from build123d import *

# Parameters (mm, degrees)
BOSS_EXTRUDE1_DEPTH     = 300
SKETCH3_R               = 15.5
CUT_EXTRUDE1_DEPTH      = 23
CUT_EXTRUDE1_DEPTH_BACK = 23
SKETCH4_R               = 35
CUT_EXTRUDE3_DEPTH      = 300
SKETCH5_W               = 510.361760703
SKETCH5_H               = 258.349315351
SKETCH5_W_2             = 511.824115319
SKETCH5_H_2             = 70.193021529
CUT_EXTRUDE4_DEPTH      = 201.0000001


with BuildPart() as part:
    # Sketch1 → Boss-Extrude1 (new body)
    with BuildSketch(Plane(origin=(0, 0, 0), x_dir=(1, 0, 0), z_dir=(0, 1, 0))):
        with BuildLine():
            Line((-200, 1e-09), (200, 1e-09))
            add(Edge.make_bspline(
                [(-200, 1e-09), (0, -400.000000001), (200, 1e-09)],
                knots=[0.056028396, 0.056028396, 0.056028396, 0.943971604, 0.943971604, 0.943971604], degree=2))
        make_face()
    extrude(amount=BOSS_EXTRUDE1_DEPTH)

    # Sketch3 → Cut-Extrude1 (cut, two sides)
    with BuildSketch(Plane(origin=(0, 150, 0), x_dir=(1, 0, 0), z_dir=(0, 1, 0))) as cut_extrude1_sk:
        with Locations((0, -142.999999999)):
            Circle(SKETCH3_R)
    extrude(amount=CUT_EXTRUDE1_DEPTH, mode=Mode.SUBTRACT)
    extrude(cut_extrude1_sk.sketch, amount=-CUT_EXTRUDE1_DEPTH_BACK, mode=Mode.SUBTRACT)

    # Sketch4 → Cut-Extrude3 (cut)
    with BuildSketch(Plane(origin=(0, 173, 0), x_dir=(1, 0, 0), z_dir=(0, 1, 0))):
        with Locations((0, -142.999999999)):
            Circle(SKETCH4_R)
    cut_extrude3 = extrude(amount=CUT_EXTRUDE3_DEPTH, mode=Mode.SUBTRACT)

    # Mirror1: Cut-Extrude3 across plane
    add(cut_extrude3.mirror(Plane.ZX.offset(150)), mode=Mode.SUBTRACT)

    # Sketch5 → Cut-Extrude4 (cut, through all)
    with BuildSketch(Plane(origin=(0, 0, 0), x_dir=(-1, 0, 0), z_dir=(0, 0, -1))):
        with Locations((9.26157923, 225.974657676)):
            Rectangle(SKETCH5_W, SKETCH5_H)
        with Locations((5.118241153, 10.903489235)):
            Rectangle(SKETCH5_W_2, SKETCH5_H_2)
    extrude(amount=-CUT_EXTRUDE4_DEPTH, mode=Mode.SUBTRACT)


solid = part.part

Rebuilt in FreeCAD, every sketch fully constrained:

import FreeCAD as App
import Part
import Sketcher

V = App.Vector
Q = App.Units.Quantity


def add_polygon(sketch, points):
    """Adds a closed chain of lines whose ends are joined by coincident constraints."""
    first, n = sketch.GeometryCount, len(points)
    for a, b in zip(points, points[1:] + points[:1]):
        sketch.addGeometry(Part.LineSegment(App.Vector(*a, 0), App.Vector(*b, 0)), False)
    for i in range(n):
        sketch.addConstraint(Sketcher.Constraint("Coincident", first + i, 2, first + (i + 1) % n, 1))

doc = App.newDocument("Part")
body = doc.addObject("PartDesign::Body", "Body")

sketch1 = body.newObject("Sketcher::SketchObject", "Sketch")
sketch1.AttachmentSupport = (doc.getObject("XZ_Plane"), [""])
sketch1.MapMode = "FlatFace"
sketch1.addGeometry(Part.LineSegment(V(200, 0, 0), V(-200, 0, 0)), False)
sketch1.addGeometry(Part.BSplineCurve([V(-200, 0, 0), V(0, 400, 0), V(200, 0, 0)], [3, 3], [0.056028396, 0.943971604], False, 2, [1, 1, 1], False), False)
sketch1.addConstraint(Sketcher.Constraint("Block", 1))
sketch1.addConstraint(Sketcher.Constraint("Coincident", 0, 1, 1, 2))
sketch1.addConstraint(Sketcher.Constraint("Coincident", 1, 1, 0, 2))
pad1 = body.newObject("PartDesign::Pad", "Pad")
pad1.Profile = sketch1
pad1.Length = 300
pad1.Reversed = True

sketch2 = body.newObject("Sketcher::SketchObject", "Sketch001")
sketch2.AttachmentSupport = (doc.getObject("XZ_Plane"), [""])
sketch2.MapMode = "FlatFace"
sketch2.AttachmentOffset = App.Placement(V(0, 0, -150), App.Rotation())
sketch2.addGeometry(Part.Circle(V(0, 143, 0), V(0, 0, 1), 15.5), False)
sketch2.addConstraint(Sketcher.Constraint("PointOnObject", 0, 3, -2))
sketch2.addConstraint(Sketcher.Constraint("Diameter", 0, Q("31 mm")))
sketch2.addConstraint(Sketcher.Constraint("DistanceY", -1, 1, 0, 3, Q("143 mm")))
pocket1 = body.newObject("PartDesign::Pocket", "Pocket")
pocket1.Profile = sketch2
pocket1.Type = "TwoLengths"
pocket1.Length = 23
pocket1.Length2 = 23

sketch3 = body.newObject("Sketcher::SketchObject", "Sketch002")
sketch3.AttachmentSupport = (doc.getObject("XZ_Plane"), [""])
sketch3.MapMode = "FlatFace"
sketch3.AttachmentOffset = App.Placement(V(0, 0, -173), App.Rotation())
sketch3.addGeometry(Part.Circle(V(0, 143, 0), V(0, 0, 1), 35), False)
sketch3.addConstraint(Sketcher.Constraint("PointOnObject", 0, 3, -2))
sketch3.addConstraint(Sketcher.Constraint("Diameter", 0, Q("70 mm")))
sketch3.addConstraint(Sketcher.Constraint("DistanceY", -1, 1, 0, 3, Q("143 mm")))
pocket2 = body.newObject("PartDesign::Pocket", "Pocket001")
pocket2.Profile = sketch3
pocket2.Length = 300
doc.recompute()

datumplane = body.newObject("PartDesign::Plane", "DatumPlane")
datumplane.AttachmentSupport = (doc.getObject("XZ_Plane"), [""])
datumplane.MapMode = "FlatFace"
datumplane.AttachmentOffset = App.Placement(V(0, 0, -150), App.Rotation())
mirrored = body.newObject("PartDesign::Mirrored", "Mirrored")
mirrored.Originals = [pocket2]
mirrored.MirrorPlane = (datumplane, [""])
body.Tip = mirrored

sketch4 = body.newObject("Sketcher::SketchObject", "Sketch003")
sketch4.AttachmentSupport = (doc.getObject("XY_Plane"), [""])
sketch4.MapMode = "FlatFace"
add_polygon(sketch4, [(245.919301, 355.149315), (245.919301, 96.8), (-264.44246, 96.8), (-264.44246, 355.149315)])
add_polygon(sketch4, [(250.793817, 46), (250.793817, -24.193022), (-261.030299, -24.193022), (-261.030299, 46)])
sketch4.addConstraint(Sketcher.Constraint("Vertical", 0))
sketch4.addConstraint(Sketcher.Constraint("Horizontal", 1))
sketch4.addConstraint(Sketcher.Constraint("Vertical", 2))
sketch4.addConstraint(Sketcher.Constraint("Horizontal", 3))
sketch4.addConstraint(Sketcher.Constraint("Vertical", 4))
sketch4.addConstraint(Sketcher.Constraint("Horizontal", 5))
sketch4.addConstraint(Sketcher.Constraint("Vertical", 6))
sketch4.addConstraint(Sketcher.Constraint("Horizontal", 7))
sketch4.addConstraint(Sketcher.Constraint("DistanceY", -1, 1, 6, 2, Q("46 mm")))
sketch4.addConstraint(Sketcher.Constraint("DistanceY", -1, 1, 0, 2, Q("96.8 mm")))
sketch4.addConstraint(Sketcher.Constraint("DistanceX", 1, 2, 1, 1, Q("510.361761 mm")))
sketch4.addConstraint(Sketcher.Constraint("DistanceY", 4, 2, 4, 1, Q("70.193022 mm")))
sketch4.addConstraint(Sketcher.Constraint("DistanceX", -1, 1, 0, 2, Q("245.919301 mm")))
sketch4.addConstraint(Sketcher.Constraint("DistanceX", 5, 2, -1, 1, Q("261.030299 mm")))
sketch4.addConstraint(Sketcher.Constraint("DistanceX", 5, 2, 5, 1, Q("511.824115 mm")))
sketch4.addConstraint(Sketcher.Constraint("DistanceY", 0, 2, 0, 1, Q("258.349315 mm")))
pocket3 = body.newObject("PartDesign::Pocket", "Pocket002")
pocket3.Profile = sketch4
pocket3.Type = "ThroughAll"
pocket3.Reversed = True

doc.recompute()
